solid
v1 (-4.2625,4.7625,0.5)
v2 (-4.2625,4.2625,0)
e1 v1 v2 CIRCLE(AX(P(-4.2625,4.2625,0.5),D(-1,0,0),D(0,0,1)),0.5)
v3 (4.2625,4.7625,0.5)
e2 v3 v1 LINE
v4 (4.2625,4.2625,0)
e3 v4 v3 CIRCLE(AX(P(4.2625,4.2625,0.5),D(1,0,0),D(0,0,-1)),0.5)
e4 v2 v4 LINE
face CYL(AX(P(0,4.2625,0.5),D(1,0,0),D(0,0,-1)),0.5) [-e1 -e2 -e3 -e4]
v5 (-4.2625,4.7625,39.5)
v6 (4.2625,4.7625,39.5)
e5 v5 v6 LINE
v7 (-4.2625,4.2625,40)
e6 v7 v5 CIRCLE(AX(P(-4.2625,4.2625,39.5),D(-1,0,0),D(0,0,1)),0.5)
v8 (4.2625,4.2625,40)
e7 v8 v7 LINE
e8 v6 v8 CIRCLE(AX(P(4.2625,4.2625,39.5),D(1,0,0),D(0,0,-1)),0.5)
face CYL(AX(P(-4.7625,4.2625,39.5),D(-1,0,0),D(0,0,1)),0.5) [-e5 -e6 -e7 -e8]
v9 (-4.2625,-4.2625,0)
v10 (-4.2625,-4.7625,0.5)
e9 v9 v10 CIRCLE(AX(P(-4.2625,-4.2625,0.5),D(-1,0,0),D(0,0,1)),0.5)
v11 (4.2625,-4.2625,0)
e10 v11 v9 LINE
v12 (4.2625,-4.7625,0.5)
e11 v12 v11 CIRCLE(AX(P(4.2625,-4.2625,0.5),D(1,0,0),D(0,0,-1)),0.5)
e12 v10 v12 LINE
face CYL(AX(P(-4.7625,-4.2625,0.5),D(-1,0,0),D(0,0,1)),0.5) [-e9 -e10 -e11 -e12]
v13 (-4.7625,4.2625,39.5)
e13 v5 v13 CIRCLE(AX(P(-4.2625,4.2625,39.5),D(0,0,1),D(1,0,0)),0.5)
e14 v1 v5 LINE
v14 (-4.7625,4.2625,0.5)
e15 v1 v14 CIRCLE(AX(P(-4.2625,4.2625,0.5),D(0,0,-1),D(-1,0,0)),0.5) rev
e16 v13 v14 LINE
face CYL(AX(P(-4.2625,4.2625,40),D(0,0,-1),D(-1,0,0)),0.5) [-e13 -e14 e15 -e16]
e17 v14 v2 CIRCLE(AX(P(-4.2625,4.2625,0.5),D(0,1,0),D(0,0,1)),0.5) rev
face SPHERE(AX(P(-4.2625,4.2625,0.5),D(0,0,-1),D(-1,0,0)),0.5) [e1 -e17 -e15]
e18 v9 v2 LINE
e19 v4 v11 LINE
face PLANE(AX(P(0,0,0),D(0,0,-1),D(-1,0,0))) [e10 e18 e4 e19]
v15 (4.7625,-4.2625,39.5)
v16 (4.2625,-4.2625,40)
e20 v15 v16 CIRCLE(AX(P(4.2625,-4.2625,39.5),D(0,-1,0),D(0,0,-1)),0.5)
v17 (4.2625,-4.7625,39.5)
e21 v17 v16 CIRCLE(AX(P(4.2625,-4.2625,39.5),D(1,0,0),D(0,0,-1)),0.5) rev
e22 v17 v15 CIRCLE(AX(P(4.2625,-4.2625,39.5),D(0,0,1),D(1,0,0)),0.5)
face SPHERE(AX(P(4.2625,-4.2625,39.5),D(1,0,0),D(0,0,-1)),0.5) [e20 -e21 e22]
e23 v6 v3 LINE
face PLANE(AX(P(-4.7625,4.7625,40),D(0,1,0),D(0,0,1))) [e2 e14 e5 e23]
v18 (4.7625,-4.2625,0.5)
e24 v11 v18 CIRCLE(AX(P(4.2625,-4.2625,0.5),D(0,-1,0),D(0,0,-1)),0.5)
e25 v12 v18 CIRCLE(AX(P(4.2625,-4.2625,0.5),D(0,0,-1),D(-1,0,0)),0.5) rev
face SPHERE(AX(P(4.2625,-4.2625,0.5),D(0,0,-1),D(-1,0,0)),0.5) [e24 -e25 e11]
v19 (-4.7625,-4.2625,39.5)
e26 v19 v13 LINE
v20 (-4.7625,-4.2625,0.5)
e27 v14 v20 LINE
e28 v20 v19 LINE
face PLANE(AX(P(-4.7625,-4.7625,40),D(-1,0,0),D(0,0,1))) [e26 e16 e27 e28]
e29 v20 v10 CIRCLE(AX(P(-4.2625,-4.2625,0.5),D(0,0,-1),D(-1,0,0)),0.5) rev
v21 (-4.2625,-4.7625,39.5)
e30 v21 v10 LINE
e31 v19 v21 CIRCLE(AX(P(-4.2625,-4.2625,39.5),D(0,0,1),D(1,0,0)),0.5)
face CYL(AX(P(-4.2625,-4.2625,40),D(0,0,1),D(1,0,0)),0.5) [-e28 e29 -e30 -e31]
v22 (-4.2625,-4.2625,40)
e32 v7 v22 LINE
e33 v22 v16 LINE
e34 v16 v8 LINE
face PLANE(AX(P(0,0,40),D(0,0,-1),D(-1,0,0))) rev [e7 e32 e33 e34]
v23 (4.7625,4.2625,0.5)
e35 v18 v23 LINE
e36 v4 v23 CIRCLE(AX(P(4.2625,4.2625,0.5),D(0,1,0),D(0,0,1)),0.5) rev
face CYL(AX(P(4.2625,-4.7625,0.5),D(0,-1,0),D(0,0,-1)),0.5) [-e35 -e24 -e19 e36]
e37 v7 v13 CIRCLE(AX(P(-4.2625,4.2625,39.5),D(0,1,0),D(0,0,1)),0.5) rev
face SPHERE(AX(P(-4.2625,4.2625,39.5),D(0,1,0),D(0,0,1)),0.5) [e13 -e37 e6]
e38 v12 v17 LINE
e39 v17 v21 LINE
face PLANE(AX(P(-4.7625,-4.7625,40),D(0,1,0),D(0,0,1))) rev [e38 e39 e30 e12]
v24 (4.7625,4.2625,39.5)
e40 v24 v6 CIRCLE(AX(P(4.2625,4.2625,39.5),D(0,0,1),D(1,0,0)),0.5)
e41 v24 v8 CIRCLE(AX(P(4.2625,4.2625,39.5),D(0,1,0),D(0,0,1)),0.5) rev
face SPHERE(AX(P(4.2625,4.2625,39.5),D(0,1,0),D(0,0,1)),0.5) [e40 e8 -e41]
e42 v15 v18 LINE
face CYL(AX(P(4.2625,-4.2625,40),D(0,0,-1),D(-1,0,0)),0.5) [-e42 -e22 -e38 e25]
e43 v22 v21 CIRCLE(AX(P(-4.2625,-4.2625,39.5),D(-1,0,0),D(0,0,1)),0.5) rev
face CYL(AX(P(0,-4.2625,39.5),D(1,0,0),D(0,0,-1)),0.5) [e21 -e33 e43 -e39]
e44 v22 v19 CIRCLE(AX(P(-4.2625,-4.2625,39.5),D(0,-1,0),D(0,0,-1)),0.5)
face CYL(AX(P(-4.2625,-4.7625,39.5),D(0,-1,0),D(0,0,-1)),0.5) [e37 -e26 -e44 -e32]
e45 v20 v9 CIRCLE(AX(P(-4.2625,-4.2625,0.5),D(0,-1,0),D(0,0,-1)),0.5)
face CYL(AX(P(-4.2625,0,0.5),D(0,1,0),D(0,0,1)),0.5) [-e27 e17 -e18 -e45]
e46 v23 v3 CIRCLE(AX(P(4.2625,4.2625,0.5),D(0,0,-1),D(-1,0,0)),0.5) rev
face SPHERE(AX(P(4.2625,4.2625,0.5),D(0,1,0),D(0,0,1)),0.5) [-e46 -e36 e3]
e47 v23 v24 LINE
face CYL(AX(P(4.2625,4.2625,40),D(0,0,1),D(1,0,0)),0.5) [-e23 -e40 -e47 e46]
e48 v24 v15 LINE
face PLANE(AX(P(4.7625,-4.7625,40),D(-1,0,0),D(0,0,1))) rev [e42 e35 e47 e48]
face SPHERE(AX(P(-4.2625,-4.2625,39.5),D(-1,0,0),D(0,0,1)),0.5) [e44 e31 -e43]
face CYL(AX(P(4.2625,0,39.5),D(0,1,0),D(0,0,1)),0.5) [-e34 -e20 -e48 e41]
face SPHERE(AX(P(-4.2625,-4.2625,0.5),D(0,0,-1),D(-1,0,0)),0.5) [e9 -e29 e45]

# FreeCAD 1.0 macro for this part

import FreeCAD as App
import Part
import Sketcher
from FreeCAD import Vector
Q = App.Units.Quantity


def add_polygon(sketch, points):
    """Adds a closed chain of lines whose ends are joined by coincident constraints."""
    first, n = sketch.GeometryCount, len(points)
    for a, b in zip(points, points[1:] + points[:1]):
        sketch.addGeometry(Part.LineSegment(App.Vector(*a, 0), App.Vector(*b, 0)), False)
    for i in range(n):
        sketch.addConstraint(Sketcher.Constraint("Coincident", first + i, 2, first + (i + 1) % n, 1))

doc = App.newDocument("Part")
body = doc.addObject("PartDesign::Body", "Body")

# Sketch on XY plane
sketch1 = body.newObject("Sketcher::SketchObject", "Sketch")
sketch1.AttachmentSupport = (doc.getObject("XY_Plane"), [""])
sketch1.MapMode = "FlatFace"
add_polygon(sketch1, [(-5, 5), (-5, -5), (5, -5), (5, 5)])  # lines 0-3
sketch1.addConstraint(Sketcher.Constraint("Vertical", 0))
sketch1.addConstraint(Sketcher.Constraint("Horizontal", 1))
sketch1.addConstraint(Sketcher.Constraint("Vertical", 2))
sketch1.addConstraint(Sketcher.Constraint("Horizontal", 3))
sketch1.addConstraint(Sketcher.Constraint("Symmetric", 0, 2, 2, 2, -1, 1))
sketch1.addConstraint(Sketcher.Constraint("Equal", 3, 0))
sketch1.addConstraint(Sketcher.Constraint("DistanceX", 1, 1, 1, 2, Q("9.525 mm")))
pad1 = body.newObject("PartDesign::Pad", "Pad")
pad1.Profile = sketch1
pad1.Length = 40
doc.recompute()

fillet = body.newObject("PartDesign::Fillet", "Fillet")
fillet.Base = (pad1, ["Edge1"])
fillet.UseAllEdges = True
fillet.Radius = 0.5

doc.recompute()
